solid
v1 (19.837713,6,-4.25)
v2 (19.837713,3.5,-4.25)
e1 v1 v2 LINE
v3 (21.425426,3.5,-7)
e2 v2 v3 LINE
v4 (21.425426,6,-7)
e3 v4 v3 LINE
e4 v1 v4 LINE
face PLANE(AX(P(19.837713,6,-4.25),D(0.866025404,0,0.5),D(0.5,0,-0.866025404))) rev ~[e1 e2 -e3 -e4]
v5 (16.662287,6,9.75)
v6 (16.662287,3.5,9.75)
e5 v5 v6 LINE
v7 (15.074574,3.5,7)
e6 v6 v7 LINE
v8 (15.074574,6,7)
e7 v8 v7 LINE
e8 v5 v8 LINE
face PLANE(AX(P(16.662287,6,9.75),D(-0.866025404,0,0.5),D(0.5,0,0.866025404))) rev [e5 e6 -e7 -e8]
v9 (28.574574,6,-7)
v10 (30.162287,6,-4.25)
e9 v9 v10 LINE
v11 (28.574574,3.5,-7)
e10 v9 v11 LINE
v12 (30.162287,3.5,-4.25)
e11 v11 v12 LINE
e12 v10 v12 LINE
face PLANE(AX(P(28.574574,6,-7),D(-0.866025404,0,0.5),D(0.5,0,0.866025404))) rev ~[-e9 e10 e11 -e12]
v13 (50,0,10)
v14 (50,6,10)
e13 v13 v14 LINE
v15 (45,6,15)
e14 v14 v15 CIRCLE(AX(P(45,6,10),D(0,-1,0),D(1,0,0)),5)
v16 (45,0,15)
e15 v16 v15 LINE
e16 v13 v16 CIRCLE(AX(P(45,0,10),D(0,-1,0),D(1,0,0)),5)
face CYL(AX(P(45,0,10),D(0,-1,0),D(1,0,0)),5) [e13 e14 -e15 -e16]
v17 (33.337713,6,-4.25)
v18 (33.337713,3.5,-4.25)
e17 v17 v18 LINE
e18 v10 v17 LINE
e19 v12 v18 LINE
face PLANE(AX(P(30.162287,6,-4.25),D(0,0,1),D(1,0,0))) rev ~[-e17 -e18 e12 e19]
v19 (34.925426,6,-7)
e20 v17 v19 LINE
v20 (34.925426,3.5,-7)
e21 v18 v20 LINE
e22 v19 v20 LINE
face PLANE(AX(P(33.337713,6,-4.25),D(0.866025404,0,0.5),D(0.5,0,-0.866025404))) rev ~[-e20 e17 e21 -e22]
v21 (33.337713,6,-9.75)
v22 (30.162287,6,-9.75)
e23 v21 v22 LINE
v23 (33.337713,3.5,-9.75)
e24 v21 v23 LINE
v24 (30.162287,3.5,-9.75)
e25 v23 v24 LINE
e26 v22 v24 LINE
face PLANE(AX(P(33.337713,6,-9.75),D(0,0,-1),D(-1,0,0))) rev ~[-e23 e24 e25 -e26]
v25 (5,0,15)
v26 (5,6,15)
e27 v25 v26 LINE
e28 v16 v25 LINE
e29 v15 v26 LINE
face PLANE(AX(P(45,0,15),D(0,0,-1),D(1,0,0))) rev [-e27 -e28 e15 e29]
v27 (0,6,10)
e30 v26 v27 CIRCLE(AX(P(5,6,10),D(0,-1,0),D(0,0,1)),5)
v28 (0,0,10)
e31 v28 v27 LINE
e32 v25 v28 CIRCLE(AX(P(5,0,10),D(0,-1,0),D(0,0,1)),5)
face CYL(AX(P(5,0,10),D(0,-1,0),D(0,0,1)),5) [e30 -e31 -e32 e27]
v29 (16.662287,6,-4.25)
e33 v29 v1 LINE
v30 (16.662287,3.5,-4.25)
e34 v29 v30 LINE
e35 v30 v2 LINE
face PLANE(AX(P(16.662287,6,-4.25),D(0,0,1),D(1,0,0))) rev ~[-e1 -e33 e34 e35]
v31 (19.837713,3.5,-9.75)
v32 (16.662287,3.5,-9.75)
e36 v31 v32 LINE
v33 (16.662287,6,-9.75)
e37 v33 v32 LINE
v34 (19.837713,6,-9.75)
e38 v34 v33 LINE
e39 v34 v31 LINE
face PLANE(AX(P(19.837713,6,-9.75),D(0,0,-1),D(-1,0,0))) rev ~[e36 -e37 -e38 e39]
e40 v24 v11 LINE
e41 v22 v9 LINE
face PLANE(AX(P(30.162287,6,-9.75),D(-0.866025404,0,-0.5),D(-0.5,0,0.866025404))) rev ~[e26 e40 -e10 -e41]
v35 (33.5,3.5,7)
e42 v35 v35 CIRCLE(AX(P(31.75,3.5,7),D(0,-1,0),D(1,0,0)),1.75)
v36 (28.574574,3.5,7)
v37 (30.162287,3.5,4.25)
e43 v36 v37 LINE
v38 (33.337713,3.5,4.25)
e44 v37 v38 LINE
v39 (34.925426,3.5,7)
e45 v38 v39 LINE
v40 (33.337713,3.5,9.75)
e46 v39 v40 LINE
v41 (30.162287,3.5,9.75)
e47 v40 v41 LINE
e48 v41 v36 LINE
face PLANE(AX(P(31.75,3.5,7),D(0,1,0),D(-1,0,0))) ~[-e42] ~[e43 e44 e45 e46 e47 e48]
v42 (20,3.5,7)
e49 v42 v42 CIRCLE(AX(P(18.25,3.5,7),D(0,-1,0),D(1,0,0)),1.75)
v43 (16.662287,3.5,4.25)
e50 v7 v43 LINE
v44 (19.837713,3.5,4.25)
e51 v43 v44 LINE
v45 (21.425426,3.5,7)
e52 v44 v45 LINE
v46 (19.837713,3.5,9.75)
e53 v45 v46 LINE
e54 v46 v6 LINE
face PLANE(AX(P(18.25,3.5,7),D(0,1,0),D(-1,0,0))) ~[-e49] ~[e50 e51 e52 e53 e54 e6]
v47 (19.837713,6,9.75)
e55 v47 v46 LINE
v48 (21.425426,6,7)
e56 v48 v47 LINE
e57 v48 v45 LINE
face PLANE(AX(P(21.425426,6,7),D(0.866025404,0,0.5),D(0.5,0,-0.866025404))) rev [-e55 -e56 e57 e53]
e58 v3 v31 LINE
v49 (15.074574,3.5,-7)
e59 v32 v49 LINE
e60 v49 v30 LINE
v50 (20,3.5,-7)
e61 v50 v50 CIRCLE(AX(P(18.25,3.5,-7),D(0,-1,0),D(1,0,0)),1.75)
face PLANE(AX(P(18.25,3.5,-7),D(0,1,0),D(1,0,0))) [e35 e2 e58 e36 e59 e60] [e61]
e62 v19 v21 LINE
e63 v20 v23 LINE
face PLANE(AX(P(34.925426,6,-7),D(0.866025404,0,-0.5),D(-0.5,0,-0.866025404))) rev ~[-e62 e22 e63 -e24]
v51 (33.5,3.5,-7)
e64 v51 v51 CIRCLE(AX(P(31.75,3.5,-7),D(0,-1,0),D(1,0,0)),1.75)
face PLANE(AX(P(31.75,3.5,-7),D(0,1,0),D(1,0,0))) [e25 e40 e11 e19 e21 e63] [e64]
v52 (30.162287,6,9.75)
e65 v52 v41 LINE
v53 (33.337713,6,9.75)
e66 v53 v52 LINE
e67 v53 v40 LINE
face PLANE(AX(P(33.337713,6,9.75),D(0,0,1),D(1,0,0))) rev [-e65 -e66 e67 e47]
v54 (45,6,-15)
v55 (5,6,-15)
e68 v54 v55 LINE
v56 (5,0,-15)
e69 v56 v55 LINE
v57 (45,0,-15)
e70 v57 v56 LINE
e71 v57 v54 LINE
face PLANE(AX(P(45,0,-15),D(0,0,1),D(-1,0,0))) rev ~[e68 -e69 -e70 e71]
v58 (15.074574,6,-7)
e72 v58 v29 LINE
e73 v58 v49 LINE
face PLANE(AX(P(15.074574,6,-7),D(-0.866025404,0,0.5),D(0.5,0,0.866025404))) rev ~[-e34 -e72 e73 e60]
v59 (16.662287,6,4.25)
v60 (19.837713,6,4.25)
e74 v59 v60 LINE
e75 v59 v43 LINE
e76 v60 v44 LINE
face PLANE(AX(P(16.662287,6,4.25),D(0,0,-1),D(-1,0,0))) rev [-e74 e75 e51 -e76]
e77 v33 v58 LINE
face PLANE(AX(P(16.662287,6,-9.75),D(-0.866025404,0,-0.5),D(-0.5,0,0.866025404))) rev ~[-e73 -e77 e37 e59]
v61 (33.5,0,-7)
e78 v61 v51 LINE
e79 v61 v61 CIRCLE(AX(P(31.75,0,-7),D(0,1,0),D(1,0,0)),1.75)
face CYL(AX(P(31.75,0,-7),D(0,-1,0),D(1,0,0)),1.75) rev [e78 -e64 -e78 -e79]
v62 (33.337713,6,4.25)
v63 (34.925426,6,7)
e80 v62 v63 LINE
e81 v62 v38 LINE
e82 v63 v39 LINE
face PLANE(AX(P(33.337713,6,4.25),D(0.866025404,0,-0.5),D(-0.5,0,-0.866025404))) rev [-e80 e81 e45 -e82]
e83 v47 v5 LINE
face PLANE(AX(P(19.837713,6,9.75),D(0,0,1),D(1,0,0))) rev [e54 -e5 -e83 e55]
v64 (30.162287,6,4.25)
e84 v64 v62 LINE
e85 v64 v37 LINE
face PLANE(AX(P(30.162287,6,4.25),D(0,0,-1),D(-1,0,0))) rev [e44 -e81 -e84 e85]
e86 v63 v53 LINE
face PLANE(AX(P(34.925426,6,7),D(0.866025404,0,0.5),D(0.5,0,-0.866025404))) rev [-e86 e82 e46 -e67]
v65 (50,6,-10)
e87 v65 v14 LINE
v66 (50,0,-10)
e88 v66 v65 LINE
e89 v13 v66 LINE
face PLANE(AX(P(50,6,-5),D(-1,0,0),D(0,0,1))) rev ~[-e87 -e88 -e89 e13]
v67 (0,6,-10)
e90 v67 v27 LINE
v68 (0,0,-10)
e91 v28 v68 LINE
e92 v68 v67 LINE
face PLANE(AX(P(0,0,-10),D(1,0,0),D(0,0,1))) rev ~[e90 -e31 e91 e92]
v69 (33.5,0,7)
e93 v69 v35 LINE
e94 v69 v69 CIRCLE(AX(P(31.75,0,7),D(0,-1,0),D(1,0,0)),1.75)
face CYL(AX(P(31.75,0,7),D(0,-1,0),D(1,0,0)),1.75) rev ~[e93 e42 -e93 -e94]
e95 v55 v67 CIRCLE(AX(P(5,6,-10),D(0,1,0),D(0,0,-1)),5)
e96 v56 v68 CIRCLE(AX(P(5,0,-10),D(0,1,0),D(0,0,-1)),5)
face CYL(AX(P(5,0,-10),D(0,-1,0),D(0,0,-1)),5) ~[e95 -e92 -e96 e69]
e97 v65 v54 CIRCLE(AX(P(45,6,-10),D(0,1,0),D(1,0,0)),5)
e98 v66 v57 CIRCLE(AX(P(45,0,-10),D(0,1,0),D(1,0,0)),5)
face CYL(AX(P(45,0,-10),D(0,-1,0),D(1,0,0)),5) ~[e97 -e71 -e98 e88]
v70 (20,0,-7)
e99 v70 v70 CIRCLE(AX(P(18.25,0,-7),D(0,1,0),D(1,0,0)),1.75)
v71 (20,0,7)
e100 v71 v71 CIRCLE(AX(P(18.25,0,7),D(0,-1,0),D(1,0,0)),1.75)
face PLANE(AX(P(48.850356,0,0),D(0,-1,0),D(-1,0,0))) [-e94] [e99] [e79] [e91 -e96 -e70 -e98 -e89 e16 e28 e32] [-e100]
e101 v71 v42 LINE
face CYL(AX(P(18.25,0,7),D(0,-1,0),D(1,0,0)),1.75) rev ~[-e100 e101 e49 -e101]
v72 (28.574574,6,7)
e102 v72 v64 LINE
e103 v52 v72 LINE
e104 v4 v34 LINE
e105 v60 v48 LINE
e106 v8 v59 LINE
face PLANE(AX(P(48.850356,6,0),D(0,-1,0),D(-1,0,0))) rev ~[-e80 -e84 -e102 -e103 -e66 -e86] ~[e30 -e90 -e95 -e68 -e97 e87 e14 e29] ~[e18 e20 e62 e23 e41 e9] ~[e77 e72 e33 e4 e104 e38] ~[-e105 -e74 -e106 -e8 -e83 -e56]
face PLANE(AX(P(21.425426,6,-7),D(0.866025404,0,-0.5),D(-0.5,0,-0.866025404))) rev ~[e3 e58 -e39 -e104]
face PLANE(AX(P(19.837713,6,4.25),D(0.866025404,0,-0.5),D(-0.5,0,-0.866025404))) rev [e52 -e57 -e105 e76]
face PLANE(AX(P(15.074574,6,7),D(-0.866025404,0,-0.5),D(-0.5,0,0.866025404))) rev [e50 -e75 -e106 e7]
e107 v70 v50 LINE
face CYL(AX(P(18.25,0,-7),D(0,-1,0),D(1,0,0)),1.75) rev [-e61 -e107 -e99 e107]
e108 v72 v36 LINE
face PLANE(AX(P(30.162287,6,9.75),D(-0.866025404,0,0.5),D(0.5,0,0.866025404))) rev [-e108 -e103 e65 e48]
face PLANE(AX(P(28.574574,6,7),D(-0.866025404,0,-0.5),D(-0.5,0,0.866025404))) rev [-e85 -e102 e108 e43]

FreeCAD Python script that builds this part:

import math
import FreeCAD as App
import Part
import Sketcher

V = App.Vector
Q = App.Units.Quantity

doc = App.newDocument("Part")
body = doc.addObject("PartDesign::Body", "Body")

# Sketch on XZ plane
sketch1 = doc.addObject("Sketcher::SketchObject", "Sketch")
body.addObject(sketch1)
sketch1.AttachmentSupport = (doc.XZ_Plane, [""])
sketch1.MapMode = "FlatFace"
sketch1.addGeometry(Part.LineSegment(V(5, 0, 0), V(45, 0, 0)), False)
sketch1.addGeometry(Part.ArcOfCircle(Part.Circle(V(45, -5, 0), V(0, 0, 1), 5), math.radians(0), math.radians(90)), False)
sketch1.addGeometry(Part.LineSegment(V(50, -5, 0), V(50, -10, 0)), False)
sketch1.addGeometry(Part.ArcOfCircle(Part.Circle(V(45, -10, 0), V(0, 0, 1), 5), math.radians(-90), math.radians(0)), False)
sketch1.addGeometry(Part.LineSegment(V(45, -15, 0), V(5, -15, 0)), False)
sketch1.addGeometry(Part.ArcOfCircle(Part.Circle(V(5, -10, 0), V(0, 0, 1), 5), math.radians(180), math.radians(270)), False)
sketch1.addGeometry(Part.LineSegment(V(0, -10, 0), V(0, -5, 0)), False)
sketch1.addGeometry(Part.ArcOfCircle(Part.Circle(V(5, -5, 0), V(0, 0, 1), 5), math.radians(90), math.radians(180)), False)
sketch1.addGeometry(Part.Circle(V(18.2, -7, 0), V(0, 0, 1), 1.8), False)
sketch1.addGeometry(Part.Circle(V(31.8, -7, 0), V(0, 0, 1), 1.8), False)
sketch1.addConstraint(Sketcher.Constraint("Tangent", 0, 2, 1, 2))
sketch1.addConstraint(Sketcher.Constraint("Tangent", 1, 1, 2, 1))
sketch1.addConstraint(Sketcher.Constraint("Tangent", 2, 2, 3, 2))
sketch1.addConstraint(Sketcher.Constraint("Tangent", 3, 1, 4, 1))
sketch1.addConstraint(Sketcher.Constraint("Tangent", 4, 2, 5, 2))
sketch1.addConstraint(Sketcher.Constraint("Tangent", 5, 1, 6, 1))
sketch1.addConstraint(Sketcher.Constraint("Tangent", 6, 2, 7, 2))
sketch1.addConstraint(Sketcher.Constraint("Tangent", 7, 1, 0, 1))
sketch1.addConstraint(Sketcher.Constraint("Horizontal", 0))
sketch1.addConstraint(Sketcher.Constraint("Vertical", 2))
sketch1.addConstraint(Sketcher.Constraint("Horizontal", 4))
sketch1.addConstraint(Sketcher.Constraint("Vertical", 6))
sketch1.addConstraint(Sketcher.Constraint("Equal", 1, 3))
sketch1.addConstraint(Sketcher.Constraint("Equal", 3, 5))
sketch1.addConstraint(Sketcher.Constraint("Equal", 5, 7))
sketch1.addConstraint(Sketcher.Constraint("Equal", 8, 9))
sketch1.addConstraint(Sketcher.Constraint("PointOnObject", 0, 2, -1))
sketch1.addConstraint(Sketcher.Constraint("PointOnObject", 5, 1, -2))
sketch1.addConstraint(Sketcher.Constraint("Horizontal", 8, 3, 9, 3))
sketch1.addConstraint(Sketcher.Constraint("Radius", 1, 5.0))
sketch1.addConstraint(Sketcher.Constraint("Diameter", 8, 3.5))
sketch1.addConstraint(Sketcher.Constraint("DistanceX", 0, 1, 0, 2, 40.0))
sketch1.addConstraint(Sketcher.Constraint("DistanceY", 2, 2, 2, 1, 5.0))
sketch1.addConstraint(Sketcher.Constraint("DistanceY", 8, 3, -1, 1, 7.0))
sketch1.addConstraint(Sketcher.Constraint("DistanceX", 8, 3, 9, 3, 13.5))
sketch1.addConstraint(Sketcher.Constraint("DistanceX", -1, 1, 8, 3, 18.25))
pad1 = doc.addObject("PartDesign::Pad", "Pad")
body.addObject(pad1)
pad1.Profile = sketch1
pad1.Length = 6
pad1.Reversed = True

# Sketch on XZ plane
sketch2 = doc.addObject("Sketcher::SketchObject", "Sketch001")
body.addObject(sketch2)
sketch2.AttachmentSupport = (doc.XZ_Plane, [""])
sketch2.MapMode = "FlatFace"
sketch2.AttachmentOffset = App.Placement(V(0, 0, -6), App.Rotation())
sketch2.addGeometry(Part.LineSegment(V(19.8, -4.2, 0), V(21.4, -7, 0)), False)
sketch2.addGeometry(Part.LineSegment(V(21.4, -7, 0), V(19.8, -9.8, 0)), False)
sketch2.addGeometry(Part.LineSegment(V(19.8, -9.8, 0), V(16.7, -9.8, 0)), False)
sketch2.addGeometry(Part.LineSegment(V(16.7, -9.8, 0), V(15.1, -7, 0)), False)
sketch2.addGeometry(Part.LineSegment(V(15.1, -7, 0), V(16.7, -4.2, 0)), False)
sketch2.addGeometry(Part.LineSegment(V(16.7, -4.2, 0), V(19.8, -4.2, 0)), False)
sketch2.addGeometry(Part.LineSegment(V(33.3, -4.2, 0), V(34.9, -7, 0)), False)
sketch2.addGeometry(Part.LineSegment(V(34.9, -7, 0), V(33.3, -9.8, 0)), False)
sketch2.addGeometry(Part.LineSegment(V(33.3, -9.8, 0), V(30.2, -9.8, 0)), False)
sketch2.addGeometry(Part.LineSegment(V(30.2, -9.8, 0), V(28.6, -7, 0)), False)
sketch2.addGeometry(Part.LineSegment(V(28.6, -7, 0), V(30.2, -4.2, 0)), False)
sketch2.addGeometry(Part.LineSegment(V(30.2, -4.2, 0), V(33.3, -4.2, 0)), False)
sketch2.addConstraint(Sketcher.Constraint("Coincident", 0, 2, 1, 1))
sketch2.addConstraint(Sketcher.Constraint("Coincident", 1, 2, 2, 1))
sketch2.addConstraint(Sketcher.Constraint("Coincident", 2, 2, 3, 1))
sketch2.addConstraint(Sketcher.Constraint("Coincident", 3, 2, 4, 1))
sketch2.addConstraint(Sketcher.Constraint("Coincident", 4, 2, 5, 1))
sketch2.addConstraint(Sketcher.Constraint("Coincident", 5, 2, 0, 1))
sketch2.addConstraint(Sketcher.Constraint("Coincident", 6, 2, 7, 1))
sketch2.addConstraint(Sketcher.Constraint("Coincident", 7, 2, 8, 1))
sketch2.addConstraint(Sketcher.Constraint("Coincident", 8, 2, 9, 1))
sketch2.addConstraint(Sketcher.Constraint("Coincident", 9, 2, 10, 1))
sketch2.addConstraint(Sketcher.Constraint("Coincident", 10, 2, 11, 1))
sketch2.addConstraint(Sketcher.Constraint("Coincident", 11, 2, 6, 1))
sketch2.addConstraint(Sketcher.Constraint("Horizontal", 2))
sketch2.addConstraint(Sketcher.Constraint("Horizontal", 5))
sketch2.addConstraint(Sketcher.Constraint("Horizontal", 8))
sketch2.addConstraint(Sketcher.Constraint("Horizontal", 11))
sketch2.addConstraint(Sketcher.Constraint("Parallel", 0, 3))
sketch2.addConstraint(Sketcher.Constraint("Parallel", 1, 4))
sketch2.addConstraint(Sketcher.Constraint("Parallel", 3, 6))
sketch2.addConstraint(Sketcher.Constraint("Parallel", 4, 7))
sketch2.addConstraint(Sketcher.Constraint("Parallel", 6, 9))
sketch2.addConstraint(Sketcher.Constraint("Parallel", 7, 10))
sketch2.addConstraint(Sketcher.Constraint("Horizontal", 0, 2, 3, 2))
sketch2.addConstraint(Sketcher.Constraint("Horizontal", 3, 2, 6, 2))
sketch2.addConstraint(Sketcher.Constraint("Horizontal", 2, 2, 7, 2))
sketch2.addConstraint(Sketcher.Constraint("Horizontal", 6, 2, 9, 2))
sketch2.addConstraint(Sketcher.Constraint("Horizontal", 5, 2, 10, 2))
sketch2.addConstraint(Sketcher.Constraint("Vertical", 2, 2, 4, 2))
sketch2.addConstraint(Sketcher.Constraint("Vertical", 1, 2, 5, 2))
sketch2.addConstraint(Sketcher.Constraint("Equal", 5, 8))
sketch2.addConstraint(Sketcher.Constraint("Angle", 0, Q("-60 deg")))
sketch2.addConstraint(Sketcher.Constraint("DistanceY", 0, 2, -1, 1, 7.0))
sketch2.addConstraint(Sketcher.Constraint("DistanceY", 2, 2, 4, 2, 5.5))
sketch2.addConstraint(Sketcher.Constraint("DistanceX", 0, 2, 6, 2, 13.5))
sketch2.addConstraint(Sketcher.Constraint("DistanceX", 2, 2, 2, 1, 3.175426))
sketch2.addConstraint(Sketcher.Constraint("DistanceX", -1, 1, 0, 2, 21.425426))
pocket1 = doc.addObject("PartDesign::Pocket", "Pocket")
body.addObject(pocket1)
pocket1.Profile = sketch2
pocket1.Length = 2.5
pocket1.Reversed = True
doc.recompute()

mirrored = doc.addObject("PartDesign::Mirrored", "Mirrored")
body.addObject(mirrored)
mirrored.Originals = [pad1, pocket1]
mirrored.MirrorPlane = (doc.XY_Plane, [""])
body.Tip = mirrored

# Sketch on XZ plane
sketch3 = doc.addObject("Sketcher::SketchObject", "Sketch002")
body.addObject(sketch3)
sketch3.AttachmentSupport = (doc.XZ_Plane, [""])
sketch3.MapMode = "FlatFace"
sketch3.AttachmentOffset = App.Placement(V(0, 0, -6), App.Rotation())
sketch3.addGeometry(Part.LineSegment(V(50, 5, 0), V(50, -5, 0)), False)
sketch3.addGeometry(Part.ArcOfCircle(Part.Circle(V(45, -5, 0), V(0, 0, 1), 5), math.radians(0), math.radians(90)), False)
sketch3.addGeometry(Part.ArcOfCircle(Part.Circle(V(45, 5, 0), V(0, 0, 1), 5), math.radians(-90), math.radians(0)), False)
sketch3.addGeometry(Part.LineSegment(V(0, -5, 0), V(0, 5, 0)), False)
sketch3.addGeometry(Part.ArcOfCircle(Part.Circle(V(5, 5, 0), V(0, 0, 1), 5), math.radians(180), math.radians(270)), False)
sketch3.addGeometry(Part.ArcOfCircle(Part.Circle(V(5, -5, 0), V(0, 0, 1), 5), math.radians(90), math.radians(180)), False)
sketch3.addConstraint(Sketcher.Constraint("Tangent", 0, 2, 1, 1))
sketch3.addConstraint(Sketcher.Constraint("Tangent", 1, 2, 2, 1))
sketch3.addConstraint(Sketcher.Constraint("Tangent", 2, 2, 0, 1))
sketch3.addConstraint(Sketcher.Constraint("Tangent", 3, 2, 4, 1))
sketch3.addConstraint(Sketcher.Constraint("Tangent", 4, 2, 5, 1))
sketch3.addConstraint(Sketcher.Constraint("Tangent", 5, 2, 3, 1))
sketch3.addConstraint(Sketcher.Constraint("Vertical", 0))
sketch3.addConstraint(Sketcher.Constraint("Vertical", 3))
sketch3.addConstraint(Sketcher.Constraint("Equal", 1, 2))
sketch3.addConstraint(Sketcher.Constraint("Equal", 2, 4))
sketch3.addConstraint(Sketcher.Constraint("Equal", 4, 5))
sketch3.addConstraint(Sketcher.Constraint("Symmetric", 3, 2, 5, 2, -1, 1))
sketch3.addConstraint(Sketcher.Constraint("PointOnObject", 1, 2, -1))
sketch3.addConstraint(Sketcher.Constraint("Radius", 1, 5.0))
sketch3.addConstraint(Sketcher.Constraint("DistanceX", -1, 1, 1, 3, 45.0))
pad2 = doc.addObject("PartDesign::Pad", "Pad001")
body.addObject(pad2)
pad2.Profile = sketch3
pad2.Length = 6

doc.recompute()
